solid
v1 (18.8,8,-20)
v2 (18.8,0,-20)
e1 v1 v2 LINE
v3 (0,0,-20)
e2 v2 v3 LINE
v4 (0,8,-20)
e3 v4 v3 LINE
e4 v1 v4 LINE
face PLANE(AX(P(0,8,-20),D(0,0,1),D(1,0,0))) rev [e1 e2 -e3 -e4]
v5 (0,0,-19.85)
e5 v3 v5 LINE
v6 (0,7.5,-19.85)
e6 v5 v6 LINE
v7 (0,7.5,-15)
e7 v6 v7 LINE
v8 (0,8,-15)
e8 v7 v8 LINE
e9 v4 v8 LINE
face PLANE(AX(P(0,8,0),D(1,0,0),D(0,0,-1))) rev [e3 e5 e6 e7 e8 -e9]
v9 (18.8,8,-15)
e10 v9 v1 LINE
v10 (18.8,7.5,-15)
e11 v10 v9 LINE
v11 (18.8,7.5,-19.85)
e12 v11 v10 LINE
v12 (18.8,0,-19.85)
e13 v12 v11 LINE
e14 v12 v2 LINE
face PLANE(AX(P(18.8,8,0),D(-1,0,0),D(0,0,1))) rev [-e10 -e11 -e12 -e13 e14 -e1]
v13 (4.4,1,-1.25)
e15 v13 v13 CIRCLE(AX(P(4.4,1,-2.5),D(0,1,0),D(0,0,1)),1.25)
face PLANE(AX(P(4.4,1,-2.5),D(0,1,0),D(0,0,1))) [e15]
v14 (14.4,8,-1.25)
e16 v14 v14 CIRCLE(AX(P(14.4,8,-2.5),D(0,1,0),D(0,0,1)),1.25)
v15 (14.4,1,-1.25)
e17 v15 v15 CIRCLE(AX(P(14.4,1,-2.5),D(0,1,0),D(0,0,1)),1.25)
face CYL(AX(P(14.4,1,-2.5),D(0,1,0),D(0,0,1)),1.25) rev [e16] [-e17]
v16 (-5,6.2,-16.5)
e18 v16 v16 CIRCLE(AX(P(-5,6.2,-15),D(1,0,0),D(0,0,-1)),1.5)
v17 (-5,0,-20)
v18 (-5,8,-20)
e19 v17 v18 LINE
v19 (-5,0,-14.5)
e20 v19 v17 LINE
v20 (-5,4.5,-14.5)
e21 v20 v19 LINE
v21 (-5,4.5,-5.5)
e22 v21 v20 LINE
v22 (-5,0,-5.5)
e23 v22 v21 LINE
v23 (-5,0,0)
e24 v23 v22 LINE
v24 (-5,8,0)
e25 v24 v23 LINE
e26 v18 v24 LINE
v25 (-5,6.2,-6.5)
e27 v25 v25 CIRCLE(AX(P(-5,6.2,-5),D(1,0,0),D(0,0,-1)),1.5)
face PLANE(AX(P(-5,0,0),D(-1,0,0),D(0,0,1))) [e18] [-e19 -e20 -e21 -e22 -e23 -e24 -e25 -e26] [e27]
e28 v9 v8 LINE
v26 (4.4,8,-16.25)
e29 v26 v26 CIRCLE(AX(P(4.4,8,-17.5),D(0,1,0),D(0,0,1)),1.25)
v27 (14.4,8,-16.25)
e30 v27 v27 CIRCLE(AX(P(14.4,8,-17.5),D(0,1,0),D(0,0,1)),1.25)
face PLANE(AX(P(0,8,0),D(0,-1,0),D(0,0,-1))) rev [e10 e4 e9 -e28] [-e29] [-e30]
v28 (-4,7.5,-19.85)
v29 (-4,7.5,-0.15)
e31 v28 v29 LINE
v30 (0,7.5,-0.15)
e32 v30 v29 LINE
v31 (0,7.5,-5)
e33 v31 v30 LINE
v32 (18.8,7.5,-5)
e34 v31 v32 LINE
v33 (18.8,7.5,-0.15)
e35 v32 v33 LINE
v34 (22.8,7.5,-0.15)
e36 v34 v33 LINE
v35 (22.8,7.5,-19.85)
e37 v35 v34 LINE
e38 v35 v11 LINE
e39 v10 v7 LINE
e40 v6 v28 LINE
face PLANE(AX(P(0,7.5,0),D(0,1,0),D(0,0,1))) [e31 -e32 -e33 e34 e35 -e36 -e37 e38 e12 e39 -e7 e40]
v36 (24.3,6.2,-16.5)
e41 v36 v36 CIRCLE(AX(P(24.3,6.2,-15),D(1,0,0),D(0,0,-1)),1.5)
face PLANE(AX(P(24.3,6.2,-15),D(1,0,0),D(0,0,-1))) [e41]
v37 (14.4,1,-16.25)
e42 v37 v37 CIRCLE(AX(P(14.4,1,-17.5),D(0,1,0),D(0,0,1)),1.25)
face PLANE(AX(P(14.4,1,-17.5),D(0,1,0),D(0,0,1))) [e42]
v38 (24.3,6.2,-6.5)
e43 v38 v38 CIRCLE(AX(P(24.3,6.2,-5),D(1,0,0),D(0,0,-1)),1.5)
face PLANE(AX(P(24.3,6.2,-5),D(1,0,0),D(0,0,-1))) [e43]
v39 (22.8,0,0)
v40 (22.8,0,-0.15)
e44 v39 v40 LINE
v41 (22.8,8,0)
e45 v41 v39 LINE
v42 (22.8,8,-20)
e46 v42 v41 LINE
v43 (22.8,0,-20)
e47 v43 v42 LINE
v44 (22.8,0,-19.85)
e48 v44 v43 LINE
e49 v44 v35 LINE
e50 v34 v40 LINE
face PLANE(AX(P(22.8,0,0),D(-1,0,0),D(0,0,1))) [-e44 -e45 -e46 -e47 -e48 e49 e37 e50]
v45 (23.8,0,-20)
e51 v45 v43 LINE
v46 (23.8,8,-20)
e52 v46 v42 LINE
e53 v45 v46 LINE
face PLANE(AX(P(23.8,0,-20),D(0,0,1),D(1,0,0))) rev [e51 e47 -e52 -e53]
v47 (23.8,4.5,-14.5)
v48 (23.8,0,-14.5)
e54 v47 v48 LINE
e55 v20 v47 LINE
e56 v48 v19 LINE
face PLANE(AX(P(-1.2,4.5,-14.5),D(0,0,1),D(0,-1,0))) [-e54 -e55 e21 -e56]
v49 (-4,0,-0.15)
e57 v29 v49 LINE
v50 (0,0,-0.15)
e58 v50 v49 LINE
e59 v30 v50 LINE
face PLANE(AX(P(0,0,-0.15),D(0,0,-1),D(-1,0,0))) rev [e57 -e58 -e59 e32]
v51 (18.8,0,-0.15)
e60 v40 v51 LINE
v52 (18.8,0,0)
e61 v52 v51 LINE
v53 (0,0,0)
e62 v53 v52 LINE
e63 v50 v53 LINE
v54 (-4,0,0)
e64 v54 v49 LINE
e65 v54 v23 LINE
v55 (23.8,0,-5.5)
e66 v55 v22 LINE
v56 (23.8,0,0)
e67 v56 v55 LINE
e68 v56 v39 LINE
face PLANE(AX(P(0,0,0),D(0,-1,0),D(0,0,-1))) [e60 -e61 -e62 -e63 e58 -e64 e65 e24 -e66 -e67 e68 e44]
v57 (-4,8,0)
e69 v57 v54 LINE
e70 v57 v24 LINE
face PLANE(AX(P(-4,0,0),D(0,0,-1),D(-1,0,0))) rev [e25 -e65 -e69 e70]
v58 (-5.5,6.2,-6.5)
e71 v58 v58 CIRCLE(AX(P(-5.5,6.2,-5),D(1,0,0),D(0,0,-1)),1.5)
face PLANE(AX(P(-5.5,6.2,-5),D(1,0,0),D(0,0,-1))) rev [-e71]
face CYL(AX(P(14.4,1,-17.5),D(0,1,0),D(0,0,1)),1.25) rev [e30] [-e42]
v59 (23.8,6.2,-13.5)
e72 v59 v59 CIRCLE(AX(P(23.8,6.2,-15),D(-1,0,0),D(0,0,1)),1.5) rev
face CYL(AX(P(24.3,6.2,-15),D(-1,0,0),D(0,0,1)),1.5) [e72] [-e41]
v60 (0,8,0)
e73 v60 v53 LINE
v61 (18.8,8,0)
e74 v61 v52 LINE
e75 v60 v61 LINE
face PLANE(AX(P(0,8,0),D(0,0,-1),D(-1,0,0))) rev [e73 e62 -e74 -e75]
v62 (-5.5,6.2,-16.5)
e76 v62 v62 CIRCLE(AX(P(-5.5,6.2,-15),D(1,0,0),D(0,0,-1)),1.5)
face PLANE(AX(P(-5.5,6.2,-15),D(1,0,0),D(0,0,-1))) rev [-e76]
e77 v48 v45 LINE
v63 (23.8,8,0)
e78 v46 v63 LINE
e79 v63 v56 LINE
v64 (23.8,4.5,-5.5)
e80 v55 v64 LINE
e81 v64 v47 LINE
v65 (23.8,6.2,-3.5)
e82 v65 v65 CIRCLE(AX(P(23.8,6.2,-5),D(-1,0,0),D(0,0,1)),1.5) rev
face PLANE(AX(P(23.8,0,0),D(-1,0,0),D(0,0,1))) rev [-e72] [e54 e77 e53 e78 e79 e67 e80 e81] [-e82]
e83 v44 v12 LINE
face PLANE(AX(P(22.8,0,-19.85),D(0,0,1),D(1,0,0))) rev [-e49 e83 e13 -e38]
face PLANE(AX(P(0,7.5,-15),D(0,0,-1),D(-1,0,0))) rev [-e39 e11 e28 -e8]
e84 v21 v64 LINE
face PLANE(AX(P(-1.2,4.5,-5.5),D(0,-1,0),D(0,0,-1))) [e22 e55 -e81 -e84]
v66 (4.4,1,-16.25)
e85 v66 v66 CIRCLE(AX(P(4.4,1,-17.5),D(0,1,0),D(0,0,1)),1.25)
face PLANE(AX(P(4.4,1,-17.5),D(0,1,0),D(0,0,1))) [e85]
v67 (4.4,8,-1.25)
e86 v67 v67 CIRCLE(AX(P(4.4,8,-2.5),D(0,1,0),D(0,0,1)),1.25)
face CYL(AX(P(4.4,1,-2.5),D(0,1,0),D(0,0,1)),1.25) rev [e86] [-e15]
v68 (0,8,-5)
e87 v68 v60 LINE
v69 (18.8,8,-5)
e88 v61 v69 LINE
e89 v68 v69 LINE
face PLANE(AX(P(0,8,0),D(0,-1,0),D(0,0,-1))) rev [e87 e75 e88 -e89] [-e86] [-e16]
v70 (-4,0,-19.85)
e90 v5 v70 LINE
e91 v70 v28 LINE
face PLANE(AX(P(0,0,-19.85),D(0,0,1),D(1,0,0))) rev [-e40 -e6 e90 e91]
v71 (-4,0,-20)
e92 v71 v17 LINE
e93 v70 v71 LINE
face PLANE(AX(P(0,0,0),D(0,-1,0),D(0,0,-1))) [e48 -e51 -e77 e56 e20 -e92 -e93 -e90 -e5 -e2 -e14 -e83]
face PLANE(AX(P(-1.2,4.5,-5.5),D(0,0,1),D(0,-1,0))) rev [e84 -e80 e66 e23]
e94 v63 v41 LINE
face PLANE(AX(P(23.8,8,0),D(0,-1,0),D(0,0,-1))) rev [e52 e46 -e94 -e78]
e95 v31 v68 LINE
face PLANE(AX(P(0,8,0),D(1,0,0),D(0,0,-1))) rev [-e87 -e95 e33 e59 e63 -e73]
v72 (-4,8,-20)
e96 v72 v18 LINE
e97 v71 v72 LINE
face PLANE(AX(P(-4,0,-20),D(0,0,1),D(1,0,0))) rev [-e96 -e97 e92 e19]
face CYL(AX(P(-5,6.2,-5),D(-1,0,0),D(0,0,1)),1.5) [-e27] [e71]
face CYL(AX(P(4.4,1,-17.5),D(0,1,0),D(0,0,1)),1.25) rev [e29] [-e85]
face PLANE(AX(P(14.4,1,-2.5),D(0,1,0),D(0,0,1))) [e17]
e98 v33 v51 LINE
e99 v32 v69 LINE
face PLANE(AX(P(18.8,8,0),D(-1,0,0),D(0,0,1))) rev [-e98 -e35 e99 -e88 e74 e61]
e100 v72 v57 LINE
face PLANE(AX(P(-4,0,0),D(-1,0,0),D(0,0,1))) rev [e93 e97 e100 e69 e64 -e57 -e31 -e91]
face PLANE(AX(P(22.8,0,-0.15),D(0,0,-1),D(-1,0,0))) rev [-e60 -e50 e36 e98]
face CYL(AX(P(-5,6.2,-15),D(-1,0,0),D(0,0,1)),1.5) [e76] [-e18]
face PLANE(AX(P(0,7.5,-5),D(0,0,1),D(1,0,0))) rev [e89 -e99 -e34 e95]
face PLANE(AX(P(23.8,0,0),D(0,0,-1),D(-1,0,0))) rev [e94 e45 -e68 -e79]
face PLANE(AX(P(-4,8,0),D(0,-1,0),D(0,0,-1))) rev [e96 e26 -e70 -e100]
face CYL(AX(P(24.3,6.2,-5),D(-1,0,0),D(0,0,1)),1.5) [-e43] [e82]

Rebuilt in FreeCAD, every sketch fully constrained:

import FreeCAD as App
import Part
import Sketcher

doc = App.newDocument("Part")
body = doc.addObject("PartDesign::Body", "Body")

sketch1 = doc.addObject("Sketcher::SketchObject", "Sketch")
body.addObject(sketch1)
sketch1.AttachmentSupport = (doc.XZ_Plane, [""])
sketch1.MapMode = "FlatFace"
sketch1.addGeometry(Part.LineSegment(App.Vector(0, -20, 0), App.Vector(0, 0, 0)), False)
sketch1.addGeometry(Part.LineSegment(App.Vector(0, 0, 0), App.Vector(19, 0, 0)), False)
sketch1.addGeometry(Part.LineSegment(App.Vector(19, 0, 0), App.Vector(19, -20, 0)), False)
sketch1.addGeometry(Part.LineSegment(App.Vector(19, -20, 0), App.Vector(0, -20, 0)), False)
sketch1.addConstraint(Sketcher.Constraint("Coincident", 0, 2, 1, 1))
sketch1.addConstraint(Sketcher.Constraint("Coincident", 1, 2, 2, 1))
sketch1.addConstraint(Sketcher.Constraint("Coincident", 2, 2, 3, 1))
sketch1.addConstraint(Sketcher.Constraint("Coincident", 3, 2, 0, 1))
sketch1.addConstraint(Sketcher.Constraint("Vertical", 0))
sketch1.addConstraint(Sketcher.Constraint("Horizontal", 1))
sketch1.addConstraint(Sketcher.Constraint("Vertical", 2))
sketch1.addConstraint(Sketcher.Constraint("Horizontal", 3))
sketch1.addConstraint(Sketcher.Constraint("Coincident", 0, 2, -1, 1))
sketch1.addConstraint(Sketcher.Constraint("DistanceY", 0, 1, 0, 2, 20.0))
sketch1.addConstraint(Sketcher.Constraint("DistanceX", 1, 1, 1, 2, 18.8))
pad1 = doc.addObject("PartDesign::Pad", "Pad")
body.addObject(pad1)
pad1.Profile = sketch1
pad1.Length = 8
pad1.Reversed = True

sketch2 = doc.addObject("Sketcher::SketchObject", "Sketch001")
body.addObject(sketch2)
sketch2.AttachmentSupport = (doc.XZ_Plane, [""])
sketch2.MapMode = "FlatFace"
sketch2.AttachmentOffset = App.Placement(App.Vector(0, 0, -8), App.Rotation())
sketch2.addGeometry(Part.Circle(App.Vector(4.4, -2.5, 0), App.Vector(0, 0, 1), 1.2), False)
sketch2.addGeometry(Part.Circle(App.Vector(14.4, -2.5, 0), App.Vector(0, 0, 1), 1.2), False)
sketch2.addGeometry(Part.Circle(App.Vector(14.4, -17.5, 0), App.Vector(0, 0, 1), 1.2), False)
sketch2.addGeometry(Part.Circle(App.Vector(4.4, -17.5, 0), App.Vector(0, 0, 1), 1.2), False)
sketch2.addConstraint(Sketcher.Constraint("Equal", 0, 1))
sketch2.addConstraint(Sketcher.Constraint("Equal", 1, 2))
sketch2.addConstraint(Sketcher.Constraint("Equal", 2, 3))
sketch2.addConstraint(Sketcher.Constraint("Horizontal", 0, 3, 1, 3))
sketch2.addConstraint(Sketcher.Constraint("Horizontal", 2, 3, 3, 3))
sketch2.addConstraint(Sketcher.Constraint("Vertical", 1, 3, 2, 3))
sketch2.addConstraint(Sketcher.Constraint("Vertical", 0, 3, 3, 3))
sketch2.addConstraint(Sketcher.Constraint("Diameter", 0, 2.5))
sketch2.addConstraint(Sketcher.Constraint("DistanceX", 0, 3, 1, 3, 10.0))
sketch2.addConstraint(Sketcher.Constraint("DistanceY", 2, 3, 1, 3, 15.0))
sketch2.addConstraint(Sketcher.Constraint("DistanceX", -1, 1, 0, 3, 4.4))
sketch2.addConstraint(Sketcher.Constraint("DistanceY", 0, 3, -1, 1, 2.5))
pocket1 = doc.addObject("PartDesign::Pocket", "Pocket")
body.addObject(pocket1)
pocket1.Profile = sketch2
pocket1.Length = 7
pocket1.Reversed = True

sketch3 = doc.addObject("Sketcher::SketchObject", "Sketch002")
body.addObject(sketch3)
sketch3.AttachmentSupport = (doc.XZ_Plane, [""])
sketch3.MapMode = "FlatFace"
sketch3.AttachmentOffset = App.Placement(App.Vector(0, 0, -8), App.Rotation())
sketch3.addGeometry(Part.LineSegment(App.Vector(0, -15, 0), App.Vector(0, -5, 0)), False)
sketch3.addGeometry(Part.LineSegment(App.Vector(0, -5, 0), App.Vector(19, -5, 0)), False)
sketch3.addGeometry(Part.LineSegment(App.Vector(19, -5, 0), App.Vector(19, -15, 0)), False)
sketch3.addGeometry(Part.LineSegment(App.Vector(19, -15, 0), App.Vector(0, -15, 0)), False)
sketch3.addConstraint(Sketcher.Constraint("Coincident", 0, 2, 1, 1))
sketch3.addConstraint(Sketcher.Constraint("Coincident", 1, 2, 2, 1))
sketch3.addConstraint(Sketcher.Constraint("Coincident", 2, 2, 3, 1))
sketch3.addConstraint(Sketcher.Constraint("Coincident", 3, 2, 0, 1))
sketch3.addConstraint(Sketcher.Constraint("Vertical", 0))
sketch3.addConstraint(Sketcher.Constraint("Horizontal", 1))
sketch3.addConstraint(Sketcher.Constraint("Vertical", 2))
sketch3.addConstraint(Sketcher.Constraint("Horizontal", 3))
sketch3.addConstraint(Sketcher.Constraint("PointOnObject", 0, 2, -2))
sketch3.addConstraint(Sketcher.Constraint("DistanceY", 0, 1, 0, 2, 10.0))
sketch3.addConstraint(Sketcher.Constraint("DistanceX", 1, 1, 1, 2, 18.8))
sketch3.addConstraint(Sketcher.Constraint("DistanceY", 0, 2, -1, 1, 5.0))
pocket2 = doc.addObject("PartDesign::Pocket", "Pocket001")
body.addObject(pocket2)
pocket2.Profile = sketch3
pocket2.Length = 0.5
pocket2.Reversed = True

sketch4 = doc.addObject("Sketcher::SketchObject", "Sketch003")
body.addObject(sketch4)
sketch4.AttachmentSupport = (doc.YZ_Plane, [""])
sketch4.MapMode = "FlatFace"
sketch4.AttachmentOffset = App.Placement(App.Vector(0, 0, 18.8), App.Rotation())
sketch4.addGeometry(Part.LineSegment(App.Vector(4.5, -5.5, 0), App.Vector(0, -5.5, 0)), False)
sketch4.addGeometry(Part.LineSegment(App.Vector(0, -5.5, 0), App.Vector(0, -14.5, 0)), False)
sketch4.addGeometry(Part.LineSegment(App.Vector(0, -14.5, 0), App.Vector(4.5, -14.5, 0)), False)
sketch4.addGeometry(Part.LineSegment(App.Vector(4.5, -14.5, 0), App.Vector(4.5, -5.5, 0)), False)
sketch4.addConstraint(Sketcher.Constraint("Coincident", 0, 2, 1, 1))
sketch4.addConstraint(Sketcher.Constraint("Coincident", 1, 2, 2, 1))
sketch4.addConstraint(Sketcher.Constraint("Coincident", 2, 2, 3, 1))
sketch4.addConstraint(Sketcher.Constraint("Coincident", 3, 2, 0, 1))
sketch4.addConstraint(Sketcher.Constraint("Horizontal", 0))
sketch4.addConstraint(Sketcher.Constraint("Vertical", 1))
sketch4.addConstraint(Sketcher.Constraint("Horizontal", 2))
sketch4.addConstraint(Sketcher.Constraint("Vertical", 3))
sketch4.addConstraint(Sketcher.Constraint("PointOnObject", 0, 2, -2))
sketch4.addConstraint(Sketcher.Constraint("DistanceY", 1, 2, 1, 1, 9.0))
sketch4.addConstraint(Sketcher.Constraint("DistanceX", 0, 2, 0, 1, 4.5))
sketch4.addConstraint(Sketcher.Constraint("DistanceY", 0, 2, -1, 1, 5.5))
pocket3 = doc.addObject("PartDesign::Pocket", "Pocket002")
body.addObject(pocket3)
pocket3.Profile = sketch4
pocket3.Length = 20

sketch5 = doc.addObject("Sketcher::SketchObject", "Sketch004")
body.addObject(sketch5)
sketch5.AttachmentSupport = (doc.YZ_Plane, [""])
sketch5.MapMode = "FlatFace"
sketch5.AttachmentOffset = App.Placement(App.Vector(0, 0, 18.8), App.Rotation())
sketch5.addGeometry(Part.LineSegment(App.Vector(0, -0.1, 0), App.Vector(0, -5.5, 0)), False)
sketch5.addGeometry(Part.LineSegment(App.Vector(0, -5.5, 0), App.Vector(4.5, -5.5, 0)), False)
sketch5.addGeometry(Part.LineSegment(App.Vector(4.5, -5.5, 0), App.Vector(4.5, -14.5, 0)), False)
sketch5.addGeometry(Part.LineSegment(App.Vector(4.5, -14.5, 0), App.Vector(0, -14.5, 0)), False)
sketch5.addGeometry(Part.LineSegment(App.Vector(0, -14.5, 0), App.Vector(0, -19.9, 0)), False)
sketch5.addGeometry(Part.LineSegment(App.Vector(0, -19.9, 0), App.Vector(7.5, -19.9, 0)), False)
sketch5.addGeometry(Part.LineSegment(App.Vector(7.5, -19.9, 0), App.Vector(7.5, -0.1, 0)), False)
sketch5.addGeometry(Part.LineSegment(App.Vector(7.5, -0.1, 0), App.Vector(0, -0.1, 0)), False)
sketch5.addConstraint(Sketcher.Constraint("Coincident", 0, 2, 1, 1))
sketch5.addConstraint(Sketcher.Constraint("Coincident", 1, 2, 2, 1))
sketch5.addConstraint(Sketcher.Constraint("Coincident", 2, 2, 3, 1))
sketch5.addConstraint(Sketcher.Constraint("Coincident", 3, 2, 4, 1))
sketch5.addConstraint(Sketcher.Constraint("Coincident", 4, 2, 5, 1))
sketch5.addConstraint(Sketcher.Constraint("Coincident", 5, 2, 6, 1))
sketch5.addConstraint(Sketcher.Constraint("Coincident", 6, 2, 7, 1))
sketch5.addConstraint(Sketcher.Constraint("Coincident", 7, 2, 0, 1))
sketch5.addConstraint(Sketcher.Constraint("Vertical", 0))
sketch5.addConstraint(Sketcher.Constraint("Horizontal", 1))
sketch5.addConstraint(Sketcher.Constraint("Vertical", 2))
sketch5.addConstraint(Sketcher.Constraint("Horizontal", 3))
sketch5.addConstraint(Sketcher.Constraint("Vertical", 4))
sketch5.addConstraint(Sketcher.Constraint("Horizontal", 5))
sketch5.addConstraint(Sketcher.Constraint("Vertical", 6))
sketch5.addConstraint(Sketcher.Constraint("Horizontal", 7))
sketch5.addConstraint(Sketcher.Constraint("PointOnObject", 0, 2, -2))
sketch5.addConstraint(Sketcher.Constraint("PointOnObject", 3, 2, -2))
sketch5.addConstraint(Sketcher.Constraint("Equal", 0, 4))
sketch5.addConstraint(Sketcher.Constraint("DistanceY", 2, 2, 2, 1, 9.0))
sketch5.addConstraint(Sketcher.Constraint("DistanceX", 1, 1, 1, 2, 4.5))
sketch5.addConstraint(Sketcher.Constraint("DistanceX", 5, 1, 5, 2, 7.5))
sketch5.addConstraint(Sketcher.Constraint("DistanceY", 6, 1, 6, 2, 19.7))
sketch5.addConstraint(Sketcher.Constraint("DistanceY", 0, 2, -1, 1, 5.5))
pad2 = doc.addObject("PartDesign::Pad", "Pad001")
body.addObject(pad2)
pad2.Profile = sketch5
pad2.Length = 4
doc.recompute()

linearpattern = doc.addObject("PartDesign::LinearPattern", "LinearPattern")
body.addObject(linearpattern)
linearpattern.Originals = [pad2]
linearpattern.Direction = (doc.X_Axis, [""])
linearpattern.Mode = "offset"
linearpattern.Offset = 22.8
linearpattern.Occurrences = 2
linearpattern.Reversed = True
body.Tip = linearpattern

sketch6 = doc.addObject("Sketcher::SketchObject", "Sketch005")
body.addObject(sketch6)
sketch6.AttachmentSupport = (doc.YZ_Plane, [""])
sketch6.MapMode = "FlatFace"
sketch6.AttachmentOffset = App.Placement(App.Vector(0, 0, 22.8), App.Rotation())
sketch6.addGeometry(Part.LineSegment(App.Vector(0, 0, 0), App.Vector(0, -5.5, 0)), False)
sketch6.addGeometry(Part.LineSegment(App.Vector(0, -5.5, 0), App.Vector(4.5, -5.5, 0)), False)
sketch6.addGeometry(Part.LineSegment(App.Vector(4.5, -5.5, 0), App.Vector(4.5, -14.5, 0)), False)
sketch6.addGeometry(Part.LineSegment(App.Vector(4.5, -14.5, 0), App.Vector(0, -14.5, 0)), False)
sketch6.addGeometry(Part.LineSegment(App.Vector(0, -14.5, 0), App.Vector(0, -20, 0)), False)
sketch6.addGeometry(Part.LineSegment(App.Vector(0, -20, 0), App.Vector(8, -20, 0)), False)
sketch6.addGeometry(Part.LineSegment(App.Vector(8, -20, 0), App.Vector(8, 0, 0)), False)
sketch6.addGeometry(Part.LineSegment(App.Vector(8, 0, 0), App.Vector(0, 0, 0)), False)
sketch6.addConstraint(Sketcher.Constraint("Coincident", 0, 2, 1, 1))
sketch6.addConstraint(Sketcher.Constraint("Coincident", 1, 2, 2, 1))
sketch6.addConstraint(Sketcher.Constraint("Coincident", 2, 2, 3, 1))
sketch6.addConstraint(Sketcher.Constraint("Coincident", 3, 2, 4, 1))
sketch6.addConstraint(Sketcher.Constraint("Coincident", 4, 2, 5, 1))
sketch6.addConstraint(Sketcher.Constraint("Coincident", 5, 2, 6, 1))
sketch6.addConstraint(Sketcher.Constraint("Coincident", 6, 2, 7, 1))
sketch6.addConstraint(Sketcher.Constraint("Coincident", 7, 2, 0, 1))
sketch6.addConstraint(Sketcher.Constraint("Vertical", 0))
sketch6.addConstraint(Sketcher.Constraint("Horizontal", 1))
sketch6.addConstraint(Sketcher.Constraint("Vertical", 2))
sketch6.addConstraint(Sketcher.Constraint("Horizontal", 3))
sketch6.addConstraint(Sketcher.Constraint("Vertical", 4))
sketch6.addConstraint(Sketcher.Constraint("Horizontal", 5))
sketch6.addConstraint(Sketcher.Constraint("Vertical", 6))
sketch6.addConstraint(Sketcher.Constraint("Horizontal", 7))
sketch6.addConstraint(Sketcher.Constraint("Coincident", 7, 2, -1, 1))
sketch6.addConstraint(Sketcher.Constraint("PointOnObject", 3, 2, -2))
sketch6.addConstraint(Sketcher.Constraint("Equal", 0, 4))
sketch6.addConstraint(Sketcher.Constraint("DistanceX", 5, 1, 5, 2, 8.0))
sketch6.addConstraint(Sketcher.Constraint("DistanceY", 2, 2, 2, 1, 9.0))
sketch6.addConstraint(Sketcher.Constraint("DistanceY", 6, 1, 6, 2, 20.0))
sketch6.addConstraint(Sketcher.Constraint("DistanceX", 1, 1, 1, 2, 4.5))
pad3 = doc.addObject("PartDesign::Pad", "Pad002")
body.addObject(pad3)
pad3.Profile = sketch6
pad3.Length = 1
doc.recompute()

linearpattern2 = doc.addObject("PartDesign::LinearPattern", "LinearPattern001")
body.addObject(linearpattern2)
linearpattern2.Originals = [pad3]
linearpattern2.Direction = (doc.X_Axis, [""])
linearpattern2.Mode = "offset"
linearpattern2.Offset = 27.8
linearpattern2.Occurrences = 2
linearpattern2.Reversed = True
body.Tip = linearpattern2

sketch7 = doc.addObject("Sketcher::SketchObject", "Sketch006")
body.addObject(sketch7)
sketch7.AttachmentSupport = (doc.YZ_Plane, [""])
sketch7.MapMode = "FlatFace"
sketch7.AttachmentOffset = App.Placement(App.Vector(0, 0, 23.8), App.Rotation())
sketch7.addGeometry(Part.Circle(App.Vector(6.2, -5, 0), App.Vector(0, 0, 1), 1.5), False)
sketch7.addGeometry(Part.Circle(App.Vector(6.2, -15, 0), App.Vector(0, 0, 1), 1.5), False)
sketch7.addConstraint(Sketcher.Constraint("Equal", 0, 1))
sketch7.addConstraint(Sketcher.Constraint("Vertical", 0, 3, 1, 3))
sketch7.addConstraint(Sketcher.Constraint("Diameter", 0, 3.0))
sketch7.addConstraint(Sketcher.Constraint("DistanceY", 0, 3, -1, 1, 5.0))
sketch7.addConstraint(Sketcher.Constraint("DistanceY", 1, 3, -1, 1, 15.0))
sketch7.addConstraint(Sketcher.Constraint("DistanceX", -1, 1, 0, 3, 6.2))
pad4 = doc.addObject("PartDesign::Pad", "Pad003")
body.addObject(pad4)
pad4.Profile = sketch7
pad4.Length = 0.5
doc.recompute()

linearpattern3 = doc.addObject("PartDesign::LinearPattern", "LinearPattern002")
body.addObject(linearpattern3)
linearpattern3.Originals = [pad4]
linearpattern3.Direction = (doc.X_Axis, [""])
linearpattern3.Mode = "offset"
linearpattern3.Offset = 29.3
linearpattern3.Occurrences = 2
linearpattern3.Reversed = True
body.Tip = linearpattern3

doc.recompute()
